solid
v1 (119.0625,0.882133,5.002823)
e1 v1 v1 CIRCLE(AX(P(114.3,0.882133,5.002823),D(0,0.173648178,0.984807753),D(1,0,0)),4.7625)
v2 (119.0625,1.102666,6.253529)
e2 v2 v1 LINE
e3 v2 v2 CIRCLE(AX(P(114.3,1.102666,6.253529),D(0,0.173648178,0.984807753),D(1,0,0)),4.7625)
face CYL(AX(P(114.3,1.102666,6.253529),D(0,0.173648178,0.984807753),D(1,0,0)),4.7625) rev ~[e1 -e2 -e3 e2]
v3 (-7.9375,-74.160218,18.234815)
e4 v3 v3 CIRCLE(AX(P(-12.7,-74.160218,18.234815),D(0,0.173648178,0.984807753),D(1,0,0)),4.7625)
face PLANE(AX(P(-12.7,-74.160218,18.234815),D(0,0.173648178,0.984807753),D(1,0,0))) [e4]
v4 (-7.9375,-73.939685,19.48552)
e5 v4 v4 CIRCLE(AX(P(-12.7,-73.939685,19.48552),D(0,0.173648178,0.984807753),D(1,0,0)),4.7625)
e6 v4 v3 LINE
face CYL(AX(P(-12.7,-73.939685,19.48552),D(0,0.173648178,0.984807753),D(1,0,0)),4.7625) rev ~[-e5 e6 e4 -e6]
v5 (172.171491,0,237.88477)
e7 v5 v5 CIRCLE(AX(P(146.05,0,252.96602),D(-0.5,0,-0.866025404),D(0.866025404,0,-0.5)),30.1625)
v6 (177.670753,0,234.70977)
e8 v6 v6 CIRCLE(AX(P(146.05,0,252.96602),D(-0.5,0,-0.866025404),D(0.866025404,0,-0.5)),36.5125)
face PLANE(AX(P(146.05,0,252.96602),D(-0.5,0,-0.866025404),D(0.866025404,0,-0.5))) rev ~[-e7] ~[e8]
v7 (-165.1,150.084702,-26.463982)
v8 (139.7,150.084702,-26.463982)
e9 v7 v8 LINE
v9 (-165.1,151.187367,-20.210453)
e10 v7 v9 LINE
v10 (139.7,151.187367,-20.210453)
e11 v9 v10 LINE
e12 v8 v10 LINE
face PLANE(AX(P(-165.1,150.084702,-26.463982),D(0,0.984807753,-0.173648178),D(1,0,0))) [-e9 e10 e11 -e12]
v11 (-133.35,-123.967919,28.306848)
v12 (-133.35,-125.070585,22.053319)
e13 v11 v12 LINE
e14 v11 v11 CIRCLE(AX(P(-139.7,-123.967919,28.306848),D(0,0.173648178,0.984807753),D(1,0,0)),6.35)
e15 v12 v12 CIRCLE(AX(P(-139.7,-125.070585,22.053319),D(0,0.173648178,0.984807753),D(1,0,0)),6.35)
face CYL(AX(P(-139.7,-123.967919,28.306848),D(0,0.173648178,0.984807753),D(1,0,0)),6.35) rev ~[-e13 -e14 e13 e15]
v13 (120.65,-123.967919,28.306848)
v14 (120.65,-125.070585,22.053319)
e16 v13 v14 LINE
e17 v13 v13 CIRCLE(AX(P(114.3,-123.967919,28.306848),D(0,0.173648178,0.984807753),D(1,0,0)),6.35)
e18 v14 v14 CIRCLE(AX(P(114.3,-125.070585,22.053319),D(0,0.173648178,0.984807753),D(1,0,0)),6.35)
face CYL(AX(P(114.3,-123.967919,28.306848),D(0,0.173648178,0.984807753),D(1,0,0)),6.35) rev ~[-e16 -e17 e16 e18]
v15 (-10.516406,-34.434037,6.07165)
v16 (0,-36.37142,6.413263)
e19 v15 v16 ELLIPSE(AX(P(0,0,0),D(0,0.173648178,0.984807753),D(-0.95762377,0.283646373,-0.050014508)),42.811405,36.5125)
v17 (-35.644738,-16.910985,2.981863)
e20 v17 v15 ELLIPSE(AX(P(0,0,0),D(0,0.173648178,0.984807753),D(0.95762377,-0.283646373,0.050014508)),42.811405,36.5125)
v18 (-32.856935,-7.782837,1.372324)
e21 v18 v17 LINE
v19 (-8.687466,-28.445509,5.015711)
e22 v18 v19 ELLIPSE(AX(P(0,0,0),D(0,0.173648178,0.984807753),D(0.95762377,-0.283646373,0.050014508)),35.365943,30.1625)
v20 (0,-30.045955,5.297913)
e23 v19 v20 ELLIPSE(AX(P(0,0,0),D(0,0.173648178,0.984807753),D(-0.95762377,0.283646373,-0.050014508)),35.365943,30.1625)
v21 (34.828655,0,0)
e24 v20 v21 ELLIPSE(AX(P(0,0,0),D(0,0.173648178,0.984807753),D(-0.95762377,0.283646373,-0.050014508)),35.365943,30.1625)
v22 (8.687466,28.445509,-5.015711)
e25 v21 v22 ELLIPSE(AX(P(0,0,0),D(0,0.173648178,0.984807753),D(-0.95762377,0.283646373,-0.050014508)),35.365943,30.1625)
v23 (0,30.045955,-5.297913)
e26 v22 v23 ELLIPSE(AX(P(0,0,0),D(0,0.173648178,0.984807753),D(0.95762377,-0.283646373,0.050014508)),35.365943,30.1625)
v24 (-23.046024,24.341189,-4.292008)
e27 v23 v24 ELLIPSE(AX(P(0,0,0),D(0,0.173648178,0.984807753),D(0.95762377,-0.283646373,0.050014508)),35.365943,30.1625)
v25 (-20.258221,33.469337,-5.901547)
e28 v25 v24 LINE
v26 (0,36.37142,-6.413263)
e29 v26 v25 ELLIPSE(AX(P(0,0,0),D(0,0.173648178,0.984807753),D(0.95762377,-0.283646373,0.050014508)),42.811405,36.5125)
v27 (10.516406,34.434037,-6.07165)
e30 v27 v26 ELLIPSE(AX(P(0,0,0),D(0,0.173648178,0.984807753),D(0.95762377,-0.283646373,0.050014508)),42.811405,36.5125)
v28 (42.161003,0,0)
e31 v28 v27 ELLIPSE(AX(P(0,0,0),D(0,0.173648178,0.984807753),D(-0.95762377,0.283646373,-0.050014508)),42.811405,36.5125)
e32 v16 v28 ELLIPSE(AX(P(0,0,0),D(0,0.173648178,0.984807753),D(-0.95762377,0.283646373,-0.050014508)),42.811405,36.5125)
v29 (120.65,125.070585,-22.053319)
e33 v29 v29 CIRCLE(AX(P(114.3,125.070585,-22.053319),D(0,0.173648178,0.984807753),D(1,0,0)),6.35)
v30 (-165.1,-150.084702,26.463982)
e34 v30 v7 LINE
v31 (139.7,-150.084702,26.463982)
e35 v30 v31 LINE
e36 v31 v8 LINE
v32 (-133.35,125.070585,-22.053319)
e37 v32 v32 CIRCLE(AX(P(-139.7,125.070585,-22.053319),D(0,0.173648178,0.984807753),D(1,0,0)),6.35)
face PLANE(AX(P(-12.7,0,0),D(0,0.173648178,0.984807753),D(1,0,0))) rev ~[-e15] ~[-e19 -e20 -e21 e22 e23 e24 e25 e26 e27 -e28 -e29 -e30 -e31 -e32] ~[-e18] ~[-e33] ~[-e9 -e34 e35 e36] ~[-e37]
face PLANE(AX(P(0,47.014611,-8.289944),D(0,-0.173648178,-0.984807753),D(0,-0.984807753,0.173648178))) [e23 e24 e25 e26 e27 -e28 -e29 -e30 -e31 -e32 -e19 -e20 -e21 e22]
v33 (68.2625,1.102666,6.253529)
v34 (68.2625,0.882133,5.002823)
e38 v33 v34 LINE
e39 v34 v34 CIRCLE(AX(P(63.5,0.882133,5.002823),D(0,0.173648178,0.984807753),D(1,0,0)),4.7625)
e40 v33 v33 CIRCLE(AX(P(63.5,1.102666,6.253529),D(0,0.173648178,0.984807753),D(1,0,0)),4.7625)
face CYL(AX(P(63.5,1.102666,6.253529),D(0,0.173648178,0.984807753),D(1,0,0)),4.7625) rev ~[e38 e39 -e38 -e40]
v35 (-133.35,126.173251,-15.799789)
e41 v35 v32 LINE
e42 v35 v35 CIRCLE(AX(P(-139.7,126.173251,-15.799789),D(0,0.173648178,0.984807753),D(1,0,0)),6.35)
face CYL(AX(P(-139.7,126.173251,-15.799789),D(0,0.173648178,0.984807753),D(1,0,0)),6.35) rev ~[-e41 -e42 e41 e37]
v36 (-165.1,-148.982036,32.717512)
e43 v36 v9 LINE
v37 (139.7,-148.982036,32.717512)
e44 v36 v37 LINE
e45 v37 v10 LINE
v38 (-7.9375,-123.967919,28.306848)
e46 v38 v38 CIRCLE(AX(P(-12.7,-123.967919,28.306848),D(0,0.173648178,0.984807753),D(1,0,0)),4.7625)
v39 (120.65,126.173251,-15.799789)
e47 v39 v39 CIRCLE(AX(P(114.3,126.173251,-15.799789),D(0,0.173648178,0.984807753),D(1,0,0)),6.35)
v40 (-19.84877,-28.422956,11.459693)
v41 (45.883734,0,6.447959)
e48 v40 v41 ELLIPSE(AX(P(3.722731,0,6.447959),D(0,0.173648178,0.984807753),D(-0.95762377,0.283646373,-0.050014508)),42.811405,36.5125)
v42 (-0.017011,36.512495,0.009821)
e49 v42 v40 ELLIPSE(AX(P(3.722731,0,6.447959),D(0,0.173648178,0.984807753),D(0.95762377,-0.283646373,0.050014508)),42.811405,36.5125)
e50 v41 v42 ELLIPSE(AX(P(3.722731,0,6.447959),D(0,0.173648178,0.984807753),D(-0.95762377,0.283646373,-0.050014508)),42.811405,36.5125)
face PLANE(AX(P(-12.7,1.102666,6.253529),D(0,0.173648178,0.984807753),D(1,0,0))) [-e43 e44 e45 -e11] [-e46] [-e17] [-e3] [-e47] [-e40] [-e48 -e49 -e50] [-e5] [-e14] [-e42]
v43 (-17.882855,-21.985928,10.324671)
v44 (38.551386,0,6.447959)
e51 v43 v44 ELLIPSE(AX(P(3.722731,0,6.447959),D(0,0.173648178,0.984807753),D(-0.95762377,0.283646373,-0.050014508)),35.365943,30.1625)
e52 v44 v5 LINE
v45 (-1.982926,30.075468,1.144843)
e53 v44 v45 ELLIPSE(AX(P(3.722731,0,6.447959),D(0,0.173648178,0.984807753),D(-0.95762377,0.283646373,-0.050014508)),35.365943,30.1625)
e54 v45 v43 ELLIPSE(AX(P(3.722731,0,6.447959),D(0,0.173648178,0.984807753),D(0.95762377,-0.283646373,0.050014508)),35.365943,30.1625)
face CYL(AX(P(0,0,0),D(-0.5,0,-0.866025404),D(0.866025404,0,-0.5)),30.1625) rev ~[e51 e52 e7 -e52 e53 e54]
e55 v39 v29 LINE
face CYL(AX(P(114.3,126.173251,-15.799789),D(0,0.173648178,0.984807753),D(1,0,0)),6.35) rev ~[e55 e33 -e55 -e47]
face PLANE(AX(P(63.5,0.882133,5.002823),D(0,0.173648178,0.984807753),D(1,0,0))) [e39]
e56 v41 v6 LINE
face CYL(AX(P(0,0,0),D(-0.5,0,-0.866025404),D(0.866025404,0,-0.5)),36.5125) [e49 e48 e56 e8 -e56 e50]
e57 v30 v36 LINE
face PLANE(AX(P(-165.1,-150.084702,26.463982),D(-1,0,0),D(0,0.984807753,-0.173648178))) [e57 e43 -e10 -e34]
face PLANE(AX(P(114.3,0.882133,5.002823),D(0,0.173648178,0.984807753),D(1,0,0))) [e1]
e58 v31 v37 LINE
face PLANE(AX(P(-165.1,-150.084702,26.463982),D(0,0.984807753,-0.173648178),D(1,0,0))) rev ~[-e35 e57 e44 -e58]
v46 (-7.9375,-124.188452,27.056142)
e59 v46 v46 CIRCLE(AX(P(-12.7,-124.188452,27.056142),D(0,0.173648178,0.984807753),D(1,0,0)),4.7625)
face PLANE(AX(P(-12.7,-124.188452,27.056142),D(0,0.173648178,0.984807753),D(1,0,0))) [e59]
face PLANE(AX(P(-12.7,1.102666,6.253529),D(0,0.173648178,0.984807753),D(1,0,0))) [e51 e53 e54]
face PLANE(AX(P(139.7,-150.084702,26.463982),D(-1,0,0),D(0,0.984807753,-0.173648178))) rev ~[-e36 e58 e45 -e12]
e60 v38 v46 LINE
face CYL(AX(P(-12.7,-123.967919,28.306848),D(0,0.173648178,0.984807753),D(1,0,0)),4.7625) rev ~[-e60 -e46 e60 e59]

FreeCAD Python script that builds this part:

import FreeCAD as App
import Part
import Sketcher
Q = App.Units.Quantity

doc = App.newDocument("Part")
params = doc.addObject("Spreadsheet::Sheet", "Params")
for row, (alias, value) in enumerate([
    ("sketch1_width", "12 in"),
    ("pad1_length", "0.25 in"),
    ("sketch2_diameter", "2.875 in"),
    ("sketch2_diameter2", "2.375 in"),
    ("pad2_length", "11.5 in"),
    ("pad2_length2", "0.6 in"),
    ("sketch4_diameter", "0.375 in"),
    ("pocket2_length", "0.05 in"),
    ("sketch5_diameter", "0.5 in"),
    ("pocket3_length", "1 in"),
], start=1):
    params.set(f"A{row}", alias)
    params.set(f"B{row}", "=" + value)
    params.setAlias(f"B{row}", alias)

body = doc.addObject("PartDesign::Body", "Body")

# Sketch on an angled plane
sketch1 = body.newObject("Sketcher::SketchObject", "Sketch")
sketch1.Placement = App.Placement(App.Vector(0, 0, 0), App.Rotation(App.Vector(1, 0, 0), App.Vector(0, 0.984807753, -0.173648178), App.Vector(0, 0.173648178, 0.984807753), "ZXY"))
sketch1.addGeometry([
    Part.LineSegment(App.Vector(-165, 152, 0), App.Vector(-165, -152, 0)),
    Part.LineSegment(App.Vector(-165, -152, 0), App.Vector(140, -152, 0)),
    Part.LineSegment(App.Vector(140, -152, 0), App.Vector(140, 152, 0)),
    Part.LineSegment(App.Vector(140, 152, 0), App.Vector(-165, 152, 0)),
], False)
sketch1.addConstraint([
    Sketcher.Constraint("Coincident", 0, 2, 1, 1),
    Sketcher.Constraint("Coincident", 1, 2, 2, 1),
    Sketcher.Constraint("Coincident", 2, 2, 3, 1),
    Sketcher.Constraint("Coincident", 3, 2, 0, 1),
    Sketcher.Constraint("Vertical", 0),
    Sketcher.Constraint("Horizontal", 1),
    Sketcher.Constraint("Vertical", 2),
    Sketcher.Constraint("Horizontal", 3),
    Sketcher.Constraint("Equal", 3, 0),
    Sketcher.Constraint("DistanceX", 1, 1, 1, 2, Q("12 in")),
    Sketcher.Constraint("DistanceY", 0, 2, -1, 1, Q("6 in")),
    Sketcher.Constraint("DistanceX", 0, 2, -1, 1, Q("6.5 in")),
])
sketch1.setExpression("Constraints[9]", "Params.sketch1_width")
pad1 = body.newObject("PartDesign::Pad", "Pad")
pad1.Profile = sketch1
pad1.setExpression("Length", "Params.pad1_length")

# Sketch on an angled plane
sketch2 = body.newObject("Sketcher::SketchObject", "Sketch001")
sketch2.Placement = App.Placement(App.Vector(0, 0, 0), App.Rotation(App.Vector(0.866025404, 0, -0.5), App.Vector(0, -1, 0), App.Vector(-0.5, 0, -0.866025404), "ZXY"))
sketch2.addGeometry([
    Part.Circle(App.Vector(0, 0, 0), App.Vector(0, 0, 1), 37),
    Part.Circle(App.Vector(0, 0, 0), App.Vector(0, 0, 1), 30),
], False)
sketch2.addConstraint([
    Sketcher.Constraint("Coincident", 0, 3, -1, 1),
    Sketcher.Constraint("Coincident", 1, 3, -1, 1),
    Sketcher.Constraint("Diameter", 0, Q("2.875 in")),
    Sketcher.Constraint("Diameter", 1, Q("2.375 in")),
])
sketch2.setExpression("Constraints[2]", "Params.sketch2_diameter")
sketch2.setExpression("Constraints[3]", "Params.sketch2_diameter2")
pad2 = body.newObject("PartDesign::Pad", "Pad001")
pad2.Profile = sketch2
pad2.Type = "TwoLengths"
pad2.setExpression("Length", "Params.pad2_length")
pad2.setExpression("Length2", "Params.pad2_length2")
pad2.Reversed = True

# Sketch on YZ plane
sketch3 = body.newObject("Sketcher::SketchObject", "Sketch002")
sketch3.AttachmentSupport = (doc.getObject("YZ_Plane"), [""])
sketch3.MapMode = "FlatFace"
sketch3.addGeometry([
    Part.LineSegment(App.Vector(47, -37, 0), App.Vector(47, -8, 0)),
    Part.LineSegment(App.Vector(47, -8, 0), App.Vector(-49, 9, 0)),
    Part.LineSegment(App.Vector(-49, 9, 0), App.Vector(-49, -37, 0)),
    Part.LineSegment(App.Vector(-49, -37, 0), App.Vector(47, -37, 0)),
], False)
sketch3.addConstraint([
    Sketcher.Constraint("Coincident", 0, 2, 1, 1),
    Sketcher.Constraint("Coincident", 1, 2, 2, 1),
    Sketcher.Constraint("Coincident", 2, 2, 3, 1),
    Sketcher.Constraint("Coincident", 3, 2, 0, 1),
    Sketcher.Constraint("Vertical", 0),
    Sketcher.Constraint("Vertical", 2),
    Sketcher.Constraint("Horizontal", 3),
    Sketcher.Constraint("Angle", 1, Q("170 deg")),
    Sketcher.Constraint("DistanceY", 0, 1, 0, 2, 28.327641),
    Sketcher.Constraint("DistanceY", 2, 2, 2, 1, 45.257381),
    Sketcher.Constraint("DistanceX", -1, 1, 0, 2, 47.014611),
    Sketcher.Constraint("DistanceY", 0, 2, -1, 1, 8.289944),
])
pocket1 = body.newObject("PartDesign::Pocket", "Pocket")
pocket1.Profile = sketch3
pocket1.Type = "ThroughAll"
pocket1.Midplane = True

# Sketch on an angled plane
sketch4 = body.newObject("Sketcher::SketchObject", "Sketch003")
sketch4.Placement = App.Placement(App.Vector(0, 1.102666, 6.253529), App.Rotation(App.Vector(1, 0, 0), App.Vector(0, 0.984807753, -0.173648178), App.Vector(0, 0.173648178, 0.984807753), "ZXY"))
sketch4.addGeometry([
    Part.Circle(App.Vector(114.3, 0, 0), App.Vector(0, 0, 1), 4.8),
    Part.Circle(App.Vector(-12.7, -76.2, 0), App.Vector(0, 0, 1), 4.8),
    Part.Circle(App.Vector(63.5, 0, 0), App.Vector(0, 0, 1), 4.8),
    Part.Circle(App.Vector(-12.7, -127, 0), App.Vector(0, 0, 1), 4.8),
], False)
sketch4.addConstraint([
    Sketcher.Constraint("Equal", 0, 1),
    Sketcher.Constraint("Equal", 1, 2),
    Sketcher.Constraint("Equal", 2, 3),
    Sketcher.Constraint("PointOnObject", 0, 3, -1),
    Sketcher.Constraint("PointOnObject", 2, 3, -1),
    Sketcher.Constraint("Vertical", 1, 3, 3, 3),
    Sketcher.Constraint("Diameter", 0, Q("0.375 in")),
    Sketcher.Constraint("DistanceY", 1, 3, -1, 1, Q("3 in")),
    Sketcher.Constraint("DistanceY", 3, 3, -1, 1, Q("5 in")),
    Sketcher.Constraint("DistanceX", 1, 3, 0, 3, Q("5 in")),
    Sketcher.Constraint("DistanceX", 2, 3, 0, 3, Q("2 in")),
    Sketcher.Constraint("DistanceX", -1, 1, 0, 3, Q("4.5 in")),
])
sketch4.setExpression("Constraints[6]", "Params.sketch4_diameter")
pocket2 = body.newObject("PartDesign::Pocket", "Pocket001")
pocket2.Profile = sketch4
pocket2.setExpression("Length", "Params.pocket2_length")

# Sketch on an angled plane
sketch5 = body.newObject("Sketcher::SketchObject", "Sketch004")
sketch5.Placement = App.Placement(App.Vector(0, 1.102666, 6.253529), App.Rotation(App.Vector(1, 0, 0), App.Vector(0, 0.984807753, -0.173648178), App.Vector(0, 0.173648178, 0.984807753), "ZXY"))
sketch5.addGeometry([
    Part.Circle(App.Vector(-140, 127, 0), App.Vector(0, 0, 1), 6),
    Part.Circle(App.Vector(114, 127, 0), App.Vector(0, 0, 1), 6),
    Part.Circle(App.Vector(114, -127, 0), App.Vector(0, 0, 1), 6),
    Part.Circle(App.Vector(-140, -127, 0), App.Vector(0, 0, 1), 6),
], False)
sketch5.addConstraint([
    Sketcher.Constraint("Equal", 0, 1),
    Sketcher.Constraint("Equal", 1, 2),
    Sketcher.Constraint("Equal", 2, 3),
    Sketcher.Constraint("Symmetric", 1, 3, 2, 3, -1),
    Sketcher.Constraint("Symmetric", 0, 3, 3, 3, -1),
    Sketcher.Constraint("Horizontal", 0, 3, 1, 3),
    Sketcher.Constraint("Diameter", 0, Q("0.5 in")),
    Sketcher.Constraint("DistanceY", -1, 1, 0, 3, Q("5 in")),
    Sketcher.Constraint("DistanceX", 0, 3, 1, 3, Q("10 in")),
    Sketcher.Constraint("DistanceX", 0, 3, -1, 1, Q("5.5 in")),
])
sketch5.setExpression("Constraints[6]", "Params.sketch5_diameter")
pocket3 = body.newObject("PartDesign::Pocket", "Pocket002")
pocket3.Profile = sketch5
pocket3.setExpression("Length", "Params.pocket3_length")

doc.recompute()
